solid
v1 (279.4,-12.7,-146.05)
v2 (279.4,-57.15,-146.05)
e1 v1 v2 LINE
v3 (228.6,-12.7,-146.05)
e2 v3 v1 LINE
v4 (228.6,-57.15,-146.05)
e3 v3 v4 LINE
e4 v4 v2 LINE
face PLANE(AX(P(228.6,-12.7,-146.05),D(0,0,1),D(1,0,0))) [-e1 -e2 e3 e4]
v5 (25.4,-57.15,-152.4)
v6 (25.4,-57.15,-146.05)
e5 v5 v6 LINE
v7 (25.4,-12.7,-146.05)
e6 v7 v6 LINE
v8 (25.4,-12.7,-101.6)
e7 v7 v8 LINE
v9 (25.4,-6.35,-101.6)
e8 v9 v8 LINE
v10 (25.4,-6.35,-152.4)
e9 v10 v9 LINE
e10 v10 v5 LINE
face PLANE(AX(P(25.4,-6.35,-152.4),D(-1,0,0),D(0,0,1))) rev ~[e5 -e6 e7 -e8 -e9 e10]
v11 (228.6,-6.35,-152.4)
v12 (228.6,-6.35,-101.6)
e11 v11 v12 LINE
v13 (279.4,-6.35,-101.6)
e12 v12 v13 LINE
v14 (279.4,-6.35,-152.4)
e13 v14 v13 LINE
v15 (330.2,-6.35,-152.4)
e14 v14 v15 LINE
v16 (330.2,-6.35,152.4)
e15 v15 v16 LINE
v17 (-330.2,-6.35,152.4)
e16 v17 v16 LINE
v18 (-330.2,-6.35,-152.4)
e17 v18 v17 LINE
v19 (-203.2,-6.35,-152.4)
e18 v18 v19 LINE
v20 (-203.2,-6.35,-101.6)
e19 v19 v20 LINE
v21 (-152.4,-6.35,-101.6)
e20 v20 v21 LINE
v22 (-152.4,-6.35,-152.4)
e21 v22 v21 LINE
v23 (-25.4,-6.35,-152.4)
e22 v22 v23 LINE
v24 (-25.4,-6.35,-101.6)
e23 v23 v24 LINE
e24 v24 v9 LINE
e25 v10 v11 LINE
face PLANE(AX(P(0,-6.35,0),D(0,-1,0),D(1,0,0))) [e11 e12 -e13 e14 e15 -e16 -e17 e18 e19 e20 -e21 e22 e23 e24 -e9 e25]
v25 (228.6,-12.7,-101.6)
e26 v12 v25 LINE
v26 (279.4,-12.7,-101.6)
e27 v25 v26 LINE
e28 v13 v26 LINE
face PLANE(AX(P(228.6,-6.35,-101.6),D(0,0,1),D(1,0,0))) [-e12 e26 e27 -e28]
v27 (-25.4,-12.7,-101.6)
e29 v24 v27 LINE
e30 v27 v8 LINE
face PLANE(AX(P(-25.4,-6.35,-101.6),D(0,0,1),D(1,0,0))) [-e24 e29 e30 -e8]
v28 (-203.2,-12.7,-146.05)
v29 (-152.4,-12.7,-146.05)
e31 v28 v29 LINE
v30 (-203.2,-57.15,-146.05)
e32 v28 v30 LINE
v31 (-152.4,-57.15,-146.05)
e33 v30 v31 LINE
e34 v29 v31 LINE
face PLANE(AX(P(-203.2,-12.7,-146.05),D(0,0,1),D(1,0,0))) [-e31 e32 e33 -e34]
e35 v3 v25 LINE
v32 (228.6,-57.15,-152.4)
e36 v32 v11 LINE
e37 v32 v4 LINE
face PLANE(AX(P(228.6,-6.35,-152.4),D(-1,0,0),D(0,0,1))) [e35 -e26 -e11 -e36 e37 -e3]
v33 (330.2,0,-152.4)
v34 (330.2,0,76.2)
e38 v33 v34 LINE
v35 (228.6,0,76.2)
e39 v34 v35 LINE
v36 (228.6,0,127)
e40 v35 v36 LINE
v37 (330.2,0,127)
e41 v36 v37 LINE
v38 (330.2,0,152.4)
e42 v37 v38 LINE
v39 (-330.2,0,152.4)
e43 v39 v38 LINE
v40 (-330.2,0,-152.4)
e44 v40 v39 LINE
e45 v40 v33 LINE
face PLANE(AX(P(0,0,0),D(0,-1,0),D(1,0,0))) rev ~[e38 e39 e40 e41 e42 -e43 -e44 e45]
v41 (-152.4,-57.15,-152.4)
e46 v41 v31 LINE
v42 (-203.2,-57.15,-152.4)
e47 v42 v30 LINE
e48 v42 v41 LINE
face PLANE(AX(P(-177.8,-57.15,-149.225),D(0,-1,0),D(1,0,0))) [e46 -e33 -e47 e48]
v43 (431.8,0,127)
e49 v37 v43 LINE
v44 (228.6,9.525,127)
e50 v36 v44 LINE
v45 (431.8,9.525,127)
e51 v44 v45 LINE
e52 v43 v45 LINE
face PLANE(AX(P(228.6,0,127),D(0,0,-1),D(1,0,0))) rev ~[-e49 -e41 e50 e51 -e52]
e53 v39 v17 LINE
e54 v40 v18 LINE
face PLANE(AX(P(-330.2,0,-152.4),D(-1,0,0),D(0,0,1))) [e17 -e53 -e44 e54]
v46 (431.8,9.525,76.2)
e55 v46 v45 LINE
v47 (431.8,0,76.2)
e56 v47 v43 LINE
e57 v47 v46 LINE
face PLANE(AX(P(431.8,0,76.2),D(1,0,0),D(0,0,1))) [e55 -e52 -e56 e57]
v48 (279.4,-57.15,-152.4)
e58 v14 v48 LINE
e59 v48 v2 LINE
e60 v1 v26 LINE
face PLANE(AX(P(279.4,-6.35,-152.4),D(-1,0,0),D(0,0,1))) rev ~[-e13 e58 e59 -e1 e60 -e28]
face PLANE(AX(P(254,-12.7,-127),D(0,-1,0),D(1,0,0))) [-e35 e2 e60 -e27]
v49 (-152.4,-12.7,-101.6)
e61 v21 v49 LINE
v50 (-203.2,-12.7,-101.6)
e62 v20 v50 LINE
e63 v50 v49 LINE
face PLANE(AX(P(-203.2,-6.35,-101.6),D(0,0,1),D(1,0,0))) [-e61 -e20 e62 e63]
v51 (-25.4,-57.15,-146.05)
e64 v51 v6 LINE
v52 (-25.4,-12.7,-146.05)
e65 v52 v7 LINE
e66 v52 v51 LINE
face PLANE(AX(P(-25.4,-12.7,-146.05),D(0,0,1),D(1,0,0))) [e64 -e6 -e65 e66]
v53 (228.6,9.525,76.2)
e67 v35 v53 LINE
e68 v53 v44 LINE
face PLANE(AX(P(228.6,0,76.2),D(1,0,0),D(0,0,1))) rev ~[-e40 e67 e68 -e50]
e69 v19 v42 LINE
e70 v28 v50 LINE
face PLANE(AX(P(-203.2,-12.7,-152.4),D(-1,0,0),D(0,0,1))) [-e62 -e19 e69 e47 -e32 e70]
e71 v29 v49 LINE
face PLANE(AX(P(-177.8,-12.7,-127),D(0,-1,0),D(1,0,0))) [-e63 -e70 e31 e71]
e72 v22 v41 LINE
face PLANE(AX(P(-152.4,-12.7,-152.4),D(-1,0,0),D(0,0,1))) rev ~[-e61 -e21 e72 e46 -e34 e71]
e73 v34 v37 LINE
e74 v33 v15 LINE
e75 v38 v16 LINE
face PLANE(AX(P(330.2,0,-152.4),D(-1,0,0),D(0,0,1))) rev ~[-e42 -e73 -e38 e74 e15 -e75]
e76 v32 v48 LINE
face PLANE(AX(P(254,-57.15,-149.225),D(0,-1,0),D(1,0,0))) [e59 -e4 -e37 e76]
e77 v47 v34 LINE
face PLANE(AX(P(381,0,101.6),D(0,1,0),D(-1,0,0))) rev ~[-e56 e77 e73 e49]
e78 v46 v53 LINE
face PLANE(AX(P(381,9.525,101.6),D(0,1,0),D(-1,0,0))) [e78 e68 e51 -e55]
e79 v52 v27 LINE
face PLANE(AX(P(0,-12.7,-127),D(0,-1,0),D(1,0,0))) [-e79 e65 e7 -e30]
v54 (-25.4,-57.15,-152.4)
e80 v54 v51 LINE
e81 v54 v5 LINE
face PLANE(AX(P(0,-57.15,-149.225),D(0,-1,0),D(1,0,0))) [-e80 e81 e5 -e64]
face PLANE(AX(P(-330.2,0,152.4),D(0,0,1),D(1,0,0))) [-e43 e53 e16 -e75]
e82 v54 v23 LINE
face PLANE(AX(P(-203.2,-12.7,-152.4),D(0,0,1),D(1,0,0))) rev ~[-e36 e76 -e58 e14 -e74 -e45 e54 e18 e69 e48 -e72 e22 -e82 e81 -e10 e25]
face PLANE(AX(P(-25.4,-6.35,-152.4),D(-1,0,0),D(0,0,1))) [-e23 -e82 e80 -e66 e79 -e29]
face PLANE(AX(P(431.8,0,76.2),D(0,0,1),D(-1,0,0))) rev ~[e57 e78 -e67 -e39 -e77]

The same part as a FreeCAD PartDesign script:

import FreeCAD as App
import Part
import Sketcher

V = App.Vector
Q = App.Units.Quantity

doc = App.newDocument("Part")
body = doc.addObject("PartDesign::Body", "Body")

# Sketch on XZ plane
sketch1 = body.newObject("Sketcher::SketchObject", "Sketch")
sketch1.AttachmentSupport = (doc.getObject("XZ_Plane"), [""])
sketch1.MapMode = "FlatFace"
sketch1.addGeometry([
    Part.LineSegment(V(-330, 152, 0), V(-330, -152, 0)),
    Part.LineSegment(V(-330, -152, 0), V(330, -152, 0)),
    Part.LineSegment(V(330, -152, 0), V(330, 152, 0)),
    Part.LineSegment(V(330, 152, 0), V(-330, 152, 0)),
], False)
sketch1.addConstraint([
    Sketcher.Constraint("Coincident", 0, 2, 1, 1),
    Sketcher.Constraint("Coincident", 1, 2, 2, 1),
    Sketcher.Constraint("Coincident", 2, 2, 3, 1),
    Sketcher.Constraint("Coincident", 3, 2, 0, 1),
    Sketcher.Constraint("Vertical", 0),
    Sketcher.Constraint("Horizontal", 1),
    Sketcher.Constraint("Vertical", 2),
    Sketcher.Constraint("Horizontal", 3),
    Sketcher.Constraint("Symmetric", 0, 2, 2, 2, -1, 1),
    Sketcher.Constraint("DistanceX", 1, 1, 1, 2, Q("26 in")),
    Sketcher.Constraint("DistanceY", 0, 2, 0, 1, Q("12 in")),
])
pad1 = body.newObject("PartDesign::Pad", "Pad")
pad1.Profile = sketch1
pad1.Length = Q("0.25 in")

# Sketch on XZ plane
sketch2 = body.newObject("Sketcher::SketchObject", "Sketch001")
sketch2.AttachmentSupport = (doc.getObject("XZ_Plane"), [""])
sketch2.MapMode = "FlatFace"
sketch2.AttachmentOffset = App.Placement(V(0, 0, 0.25 * 25.4), App.Rotation())
sketch2.addGeometry([
    Part.LineSegment(V(229, -102, 0), V(229, -152, 0)),  # 0
    Part.LineSegment(V(229, -152, 0), V(279, -152, 0)),  # 1
    Part.LineSegment(V(279, -152, 0), V(279, -102, 0)),  # 2
    Part.LineSegment(V(279, -102, 0), V(229, -102, 0)),  # 3
    Part.LineSegment(V(-25, -102, 0), V(-25, -152, 0)),  # 4
    Part.LineSegment(V(-25, -152, 0), V(25, -152, 0)),  # 5
    Part.LineSegment(V(25, -152, 0), V(25, -102, 0)),  # 6
    Part.LineSegment(V(25, -102, 0), V(-25, -102, 0)),  # 7
    Part.LineSegment(V(-203, -102, 0), V(-203, -152, 0)),  # 8
    Part.LineSegment(V(-203, -152, 0), V(-152, -152, 0)),  # 9
    Part.LineSegment(V(-152, -152, 0), V(-152, -102, 0)),  # 10
    Part.LineSegment(V(-152, -102, 0), V(-203, -102, 0)),  # 11
], False)
sketch2.addConstraint([
    Sketcher.Constraint("Coincident", 0, 2, 1, 1),
    Sketcher.Constraint("Coincident", 1, 2, 2, 1),
    Sketcher.Constraint("Coincident", 2, 2, 3, 1),
    Sketcher.Constraint("Coincident", 3, 2, 0, 1),
    Sketcher.Constraint("Coincident", 4, 2, 5, 1),
    Sketcher.Constraint("Coincident", 5, 2, 6, 1),
    Sketcher.Constraint("Coincident", 6, 2, 7, 1),
    Sketcher.Constraint("Coincident", 7, 2, 4, 1),
    Sketcher.Constraint("Coincident", 8, 2, 9, 1),
    Sketcher.Constraint("Coincident", 9, 2, 10, 1),
    Sketcher.Constraint("Coincident", 10, 2, 11, 1),
    Sketcher.Constraint("Coincident", 11, 2, 8, 1),
    Sketcher.Constraint("Vertical", 0),
    Sketcher.Constraint("Horizontal", 1),
    Sketcher.Constraint("Vertical", 2),
    Sketcher.Constraint("Horizontal", 3),
    Sketcher.Constraint("Vertical", 4),
    Sketcher.Constraint("Horizontal", 5),
    Sketcher.Constraint("Vertical", 6),
    Sketcher.Constraint("Horizontal", 7),
    Sketcher.Constraint("Vertical", 8),
    Sketcher.Constraint("Horizontal", 9),
    Sketcher.Constraint("Vertical", 10),
    Sketcher.Constraint("Horizontal", 11),
    Sketcher.Constraint("Horizontal", 1, 2, 4, 2),
    Sketcher.Constraint("Horizontal", 3, 2, 6, 2),
    Sketcher.Constraint("Horizontal", 5, 2, 8, 2),
    Sketcher.Constraint("Horizontal", 7, 2, 10, 2),
    Sketcher.Constraint("Equal", 3, 5),
    Sketcher.Constraint("Equal", 7, 9),
    Sketcher.Constraint("Equal", 11, 0),
    Sketcher.Constraint("DistanceX", 1, 1, 1, 2, Q("2 in")),
    Sketcher.Constraint("DistanceX", -1, 1, 0, 2, Q("9 in")),
    Sketcher.Constraint("DistanceY", 0, 2, -1, 1, Q("6 in")),
    Sketcher.Constraint("DistanceX", 4, 2, -1, 1, Q("1 in")),
    Sketcher.Constraint("DistanceX", 8, 2, -1, 1, Q("8 in")),
])
pad2 = body.newObject("PartDesign::Pad", "Pad001")
pad2.Profile = sketch2
pad2.Length = Q("0.25 in")

# Sketch on XZ plane
sketch3 = body.newObject("Sketcher::SketchObject", "Sketch002")
sketch3.AttachmentSupport = (doc.getObject("XZ_Plane"), [""])
sketch3.MapMode = "FlatFace"
sketch3.AttachmentOffset = App.Placement(V(0, 0, 0.5 * 25.4), App.Rotation())
sketch3.addGeometry([
    Part.LineSegment(V(-203, -146, 0), V(-203, -152, 0)),  # 0
    Part.LineSegment(V(-203, -152, 0), V(-152, -152, 0)),  # 1
    Part.LineSegment(V(-152, -152, 0), V(-152, -146, 0)),  # 2
    Part.LineSegment(V(-152, -146, 0), V(-203, -146, 0)),  # 3
    Part.LineSegment(V(-25, -146, 0), V(-25, -152, 0)),  # 4
    Part.LineSegment(V(-25, -152, 0), V(25, -152, 0)),  # 5
    Part.LineSegment(V(25, -152, 0), V(25, -146, 0)),  # 6
    Part.LineSegment(V(25, -146, 0), V(-25, -146, 0)),  # 7
    Part.LineSegment(V(229, -146, 0), V(229, -152, 0)),  # 8
    Part.LineSegment(V(229, -152, 0), V(279, -152, 0)),  # 9
    Part.LineSegment(V(279, -152, 0), V(279, -146, 0)),  # 10
    Part.LineSegment(V(279, -146, 0), V(229, -146, 0)),  # 11
], False)
sketch3.addConstraint([
    Sketcher.Constraint("Coincident", 0, 2, 1, 1),
    Sketcher.Constraint("Coincident", 1, 2, 2, 1),
    Sketcher.Constraint("Coincident", 2, 2, 3, 1),
    Sketcher.Constraint("Coincident", 3, 2, 0, 1),
    Sketcher.Constraint("Coincident", 4, 2, 5, 1),
    Sketcher.Constraint("Coincident", 5, 2, 6, 1),
    Sketcher.Constraint("Coincident", 6, 2, 7, 1),
    Sketcher.Constraint("Coincident", 7, 2, 4, 1),
    Sketcher.Constraint("Coincident", 8, 2, 9, 1),
    Sketcher.Constraint("Coincident", 9, 2, 10, 1),
    Sketcher.Constraint("Coincident", 10, 2, 11, 1),
    Sketcher.Constraint("Coincident", 11, 2, 8, 1),
    Sketcher.Constraint("Vertical", 0),
    Sketcher.Constraint("Horizontal", 1),
    Sketcher.Constraint("Vertical", 2),
    Sketcher.Constraint("Horizontal", 3),
    Sketcher.Constraint("Vertical", 4),
    Sketcher.Constraint("Horizontal", 5),
    Sketcher.Constraint("Vertical", 6),
    Sketcher.Constraint("Horizontal", 7),
    Sketcher.Constraint("Vertical", 8),
    Sketcher.Constraint("Horizontal", 9),
    Sketcher.Constraint("Vertical", 10),
    Sketcher.Constraint("Horizontal", 11),
    Sketcher.Constraint("Horizontal", 1, 2, 4, 2),
    Sketcher.Constraint("Horizontal", 3, 2, 6, 2),
    Sketcher.Constraint("Horizontal", 5, 2, 8, 2),
    Sketcher.Constraint("Horizontal", 7, 2, 10, 2),
    Sketcher.Constraint("Equal", 3, 5),
    Sketcher.Constraint("Equal", 7, 9),
    Sketcher.Constraint("DistanceX", 1, 1, 1, 2, Q("2 in")),
    Sketcher.Constraint("DistanceX", 0, 2, -1, 1, Q("8 in")),
    Sketcher.Constraint("DistanceY", 0, 2, -1, 1, Q("6 in")),
    Sketcher.Constraint("DistanceX", 4, 2, -1, 1, Q("1 in")),
    Sketcher.Constraint("DistanceX", -1, 1, 8, 2, Q("9 in")),
    Sketcher.Constraint("DistanceY", 0, 2, 0, 1, Q("0.25 in")),
])
pad3 = body.newObject("PartDesign::Pad", "Pad002")
pad3.Profile = sketch3
pad3.Length = Q("1.75 in")

# Sketch on XZ plane
sketch4 = body.newObject("Sketcher::SketchObject", "Sketch003")
sketch4.AttachmentSupport = (doc.getObject("XZ_Plane"), [""])
sketch4.MapMode = "FlatFace"
sketch4.addGeometry([
    Part.LineSegment(V(432, 127, 0), V(432, 76, 0)),
    Part.LineSegment(V(432, 76, 0), V(229, 76, 0)),
    Part.LineSegment(V(229, 76, 0), V(229, 127, 0)),
    Part.LineSegment(V(229, 127, 0), V(432, 127, 0)),
], False)
sketch4.addConstraint([
    Sketcher.Constraint("Coincident", 0, 2, 1, 1),
    Sketcher.Constraint("Coincident", 1, 2, 2, 1),
    Sketcher.Constraint("Coincident", 2, 2, 3, 1),
    Sketcher.Constraint("Coincident", 3, 2, 0, 1),
    Sketcher.Constraint("Vertical", 0),
    Sketcher.Constraint("Horizontal", 1),
    Sketcher.Constraint("Vertical", 2),
    Sketcher.Constraint("Horizontal", 3),
    Sketcher.Constraint("DistanceX", 1, 2, 1, 1, Q("8 in")),
    Sketcher.Constraint("DistanceY", 0, 2, 0, 1, Q("2 in")),
    Sketcher.Constraint("DistanceX", -1, 1, 0, 2, Q("17 in")),
    Sketcher.Constraint("DistanceY", -1, 1, 0, 2, Q("3 in")),
])
pad4 = body.newObject("PartDesign::Pad", "Pad003")
pad4.Profile = sketch4
pad4.Length = Q("0.375 in")
pad4.Reversed = True

doc.recompute()
